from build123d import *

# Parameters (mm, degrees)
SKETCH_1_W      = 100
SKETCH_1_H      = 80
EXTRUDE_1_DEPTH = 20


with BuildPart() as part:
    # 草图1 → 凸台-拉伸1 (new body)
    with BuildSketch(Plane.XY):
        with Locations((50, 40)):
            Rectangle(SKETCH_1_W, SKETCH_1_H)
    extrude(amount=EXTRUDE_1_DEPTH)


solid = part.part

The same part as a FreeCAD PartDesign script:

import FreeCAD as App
import Part
import Sketcher

V = App.Vector

doc = App.newDocument("Part")
params = doc.addObject("Spreadsheet::Sheet", "Params")
for row, (alias, value) in enumerate([
    ("sketch1_width", "100 mm"),
    ("sketch1_height", "80 mm"),
    ("pad1_length", "20 mm"),
], start=1):
    params.set(f"A{row}", alias)
    params.set(f"B{row}", "=" + value)
    params.setAlias(f"B{row}", alias)

body = doc.addObject("PartDesign::Body", "Body")

# Sketch on XY plane
sketch1 = body.newObject("Sketcher::SketchObject", "Sketch")
sketch1.AttachmentSupport = (doc.getObject("XY_Plane"), [""])
sketch1.MapMode = "FlatFace"
sketch1.addGeometry(Part.LineSegment(V(0, 80, 0), V(0, 0, 0)), False)
sketch1.addGeometry(Part.LineSegment(V(0, 0, 0), V(100, 0, 0)), False)
sketch1.addGeometry(Part.LineSegment(V(100, 0, 0), V(100, 80, 0)), False)
sketch1.addGeometry(Part.LineSegment(V(100, 80, 0), V(0, 80, 0)), False)
sketch1.addConstraint(Sketcher.Constraint("Coincident", 0, 2, 1, 1))
sketch1.addConstraint(Sketcher.Constraint("Coincident", 1, 2, 2, 1))
sketch1.addConstraint(Sketcher.Constraint("Coincident", 2, 2, 3, 1))
sketch1.addConstraint(Sketcher.Constraint("Coincident", 3, 2, 0, 1))
sketch1.addConstraint(Sketcher.Constraint("Vertical", 0))
sketch1.addConstraint(Sketcher.Constraint("Horizontal", 1))
sketch1.addConstraint(Sketcher.Constraint("Vertical", 2))
sketch1.addConstraint(Sketcher.Constraint("Horizontal", 3))
sketch1.addConstraint(Sketcher.Constraint("Coincident", 0, 2, -1, 1))
sketch1.addConstraint(Sketcher.Constraint("DistanceX", 1, 1, 1, 2, 100.0))
sketch1.addConstraint(Sketcher.Constraint("DistanceY", 0, 2, 0, 1, 80.0))
sketch1.setExpression("Constraints[9]", "Params.sketch1_width")
sketch1.setExpression("Constraints[10]", "Params.sketch1_height")
pad1 = body.newObject("PartDesign::Pad", "Pad")
pad1.Profile = sketch1
pad1.setExpression("Length", "Params.pad1_length")

doc.recompute()
